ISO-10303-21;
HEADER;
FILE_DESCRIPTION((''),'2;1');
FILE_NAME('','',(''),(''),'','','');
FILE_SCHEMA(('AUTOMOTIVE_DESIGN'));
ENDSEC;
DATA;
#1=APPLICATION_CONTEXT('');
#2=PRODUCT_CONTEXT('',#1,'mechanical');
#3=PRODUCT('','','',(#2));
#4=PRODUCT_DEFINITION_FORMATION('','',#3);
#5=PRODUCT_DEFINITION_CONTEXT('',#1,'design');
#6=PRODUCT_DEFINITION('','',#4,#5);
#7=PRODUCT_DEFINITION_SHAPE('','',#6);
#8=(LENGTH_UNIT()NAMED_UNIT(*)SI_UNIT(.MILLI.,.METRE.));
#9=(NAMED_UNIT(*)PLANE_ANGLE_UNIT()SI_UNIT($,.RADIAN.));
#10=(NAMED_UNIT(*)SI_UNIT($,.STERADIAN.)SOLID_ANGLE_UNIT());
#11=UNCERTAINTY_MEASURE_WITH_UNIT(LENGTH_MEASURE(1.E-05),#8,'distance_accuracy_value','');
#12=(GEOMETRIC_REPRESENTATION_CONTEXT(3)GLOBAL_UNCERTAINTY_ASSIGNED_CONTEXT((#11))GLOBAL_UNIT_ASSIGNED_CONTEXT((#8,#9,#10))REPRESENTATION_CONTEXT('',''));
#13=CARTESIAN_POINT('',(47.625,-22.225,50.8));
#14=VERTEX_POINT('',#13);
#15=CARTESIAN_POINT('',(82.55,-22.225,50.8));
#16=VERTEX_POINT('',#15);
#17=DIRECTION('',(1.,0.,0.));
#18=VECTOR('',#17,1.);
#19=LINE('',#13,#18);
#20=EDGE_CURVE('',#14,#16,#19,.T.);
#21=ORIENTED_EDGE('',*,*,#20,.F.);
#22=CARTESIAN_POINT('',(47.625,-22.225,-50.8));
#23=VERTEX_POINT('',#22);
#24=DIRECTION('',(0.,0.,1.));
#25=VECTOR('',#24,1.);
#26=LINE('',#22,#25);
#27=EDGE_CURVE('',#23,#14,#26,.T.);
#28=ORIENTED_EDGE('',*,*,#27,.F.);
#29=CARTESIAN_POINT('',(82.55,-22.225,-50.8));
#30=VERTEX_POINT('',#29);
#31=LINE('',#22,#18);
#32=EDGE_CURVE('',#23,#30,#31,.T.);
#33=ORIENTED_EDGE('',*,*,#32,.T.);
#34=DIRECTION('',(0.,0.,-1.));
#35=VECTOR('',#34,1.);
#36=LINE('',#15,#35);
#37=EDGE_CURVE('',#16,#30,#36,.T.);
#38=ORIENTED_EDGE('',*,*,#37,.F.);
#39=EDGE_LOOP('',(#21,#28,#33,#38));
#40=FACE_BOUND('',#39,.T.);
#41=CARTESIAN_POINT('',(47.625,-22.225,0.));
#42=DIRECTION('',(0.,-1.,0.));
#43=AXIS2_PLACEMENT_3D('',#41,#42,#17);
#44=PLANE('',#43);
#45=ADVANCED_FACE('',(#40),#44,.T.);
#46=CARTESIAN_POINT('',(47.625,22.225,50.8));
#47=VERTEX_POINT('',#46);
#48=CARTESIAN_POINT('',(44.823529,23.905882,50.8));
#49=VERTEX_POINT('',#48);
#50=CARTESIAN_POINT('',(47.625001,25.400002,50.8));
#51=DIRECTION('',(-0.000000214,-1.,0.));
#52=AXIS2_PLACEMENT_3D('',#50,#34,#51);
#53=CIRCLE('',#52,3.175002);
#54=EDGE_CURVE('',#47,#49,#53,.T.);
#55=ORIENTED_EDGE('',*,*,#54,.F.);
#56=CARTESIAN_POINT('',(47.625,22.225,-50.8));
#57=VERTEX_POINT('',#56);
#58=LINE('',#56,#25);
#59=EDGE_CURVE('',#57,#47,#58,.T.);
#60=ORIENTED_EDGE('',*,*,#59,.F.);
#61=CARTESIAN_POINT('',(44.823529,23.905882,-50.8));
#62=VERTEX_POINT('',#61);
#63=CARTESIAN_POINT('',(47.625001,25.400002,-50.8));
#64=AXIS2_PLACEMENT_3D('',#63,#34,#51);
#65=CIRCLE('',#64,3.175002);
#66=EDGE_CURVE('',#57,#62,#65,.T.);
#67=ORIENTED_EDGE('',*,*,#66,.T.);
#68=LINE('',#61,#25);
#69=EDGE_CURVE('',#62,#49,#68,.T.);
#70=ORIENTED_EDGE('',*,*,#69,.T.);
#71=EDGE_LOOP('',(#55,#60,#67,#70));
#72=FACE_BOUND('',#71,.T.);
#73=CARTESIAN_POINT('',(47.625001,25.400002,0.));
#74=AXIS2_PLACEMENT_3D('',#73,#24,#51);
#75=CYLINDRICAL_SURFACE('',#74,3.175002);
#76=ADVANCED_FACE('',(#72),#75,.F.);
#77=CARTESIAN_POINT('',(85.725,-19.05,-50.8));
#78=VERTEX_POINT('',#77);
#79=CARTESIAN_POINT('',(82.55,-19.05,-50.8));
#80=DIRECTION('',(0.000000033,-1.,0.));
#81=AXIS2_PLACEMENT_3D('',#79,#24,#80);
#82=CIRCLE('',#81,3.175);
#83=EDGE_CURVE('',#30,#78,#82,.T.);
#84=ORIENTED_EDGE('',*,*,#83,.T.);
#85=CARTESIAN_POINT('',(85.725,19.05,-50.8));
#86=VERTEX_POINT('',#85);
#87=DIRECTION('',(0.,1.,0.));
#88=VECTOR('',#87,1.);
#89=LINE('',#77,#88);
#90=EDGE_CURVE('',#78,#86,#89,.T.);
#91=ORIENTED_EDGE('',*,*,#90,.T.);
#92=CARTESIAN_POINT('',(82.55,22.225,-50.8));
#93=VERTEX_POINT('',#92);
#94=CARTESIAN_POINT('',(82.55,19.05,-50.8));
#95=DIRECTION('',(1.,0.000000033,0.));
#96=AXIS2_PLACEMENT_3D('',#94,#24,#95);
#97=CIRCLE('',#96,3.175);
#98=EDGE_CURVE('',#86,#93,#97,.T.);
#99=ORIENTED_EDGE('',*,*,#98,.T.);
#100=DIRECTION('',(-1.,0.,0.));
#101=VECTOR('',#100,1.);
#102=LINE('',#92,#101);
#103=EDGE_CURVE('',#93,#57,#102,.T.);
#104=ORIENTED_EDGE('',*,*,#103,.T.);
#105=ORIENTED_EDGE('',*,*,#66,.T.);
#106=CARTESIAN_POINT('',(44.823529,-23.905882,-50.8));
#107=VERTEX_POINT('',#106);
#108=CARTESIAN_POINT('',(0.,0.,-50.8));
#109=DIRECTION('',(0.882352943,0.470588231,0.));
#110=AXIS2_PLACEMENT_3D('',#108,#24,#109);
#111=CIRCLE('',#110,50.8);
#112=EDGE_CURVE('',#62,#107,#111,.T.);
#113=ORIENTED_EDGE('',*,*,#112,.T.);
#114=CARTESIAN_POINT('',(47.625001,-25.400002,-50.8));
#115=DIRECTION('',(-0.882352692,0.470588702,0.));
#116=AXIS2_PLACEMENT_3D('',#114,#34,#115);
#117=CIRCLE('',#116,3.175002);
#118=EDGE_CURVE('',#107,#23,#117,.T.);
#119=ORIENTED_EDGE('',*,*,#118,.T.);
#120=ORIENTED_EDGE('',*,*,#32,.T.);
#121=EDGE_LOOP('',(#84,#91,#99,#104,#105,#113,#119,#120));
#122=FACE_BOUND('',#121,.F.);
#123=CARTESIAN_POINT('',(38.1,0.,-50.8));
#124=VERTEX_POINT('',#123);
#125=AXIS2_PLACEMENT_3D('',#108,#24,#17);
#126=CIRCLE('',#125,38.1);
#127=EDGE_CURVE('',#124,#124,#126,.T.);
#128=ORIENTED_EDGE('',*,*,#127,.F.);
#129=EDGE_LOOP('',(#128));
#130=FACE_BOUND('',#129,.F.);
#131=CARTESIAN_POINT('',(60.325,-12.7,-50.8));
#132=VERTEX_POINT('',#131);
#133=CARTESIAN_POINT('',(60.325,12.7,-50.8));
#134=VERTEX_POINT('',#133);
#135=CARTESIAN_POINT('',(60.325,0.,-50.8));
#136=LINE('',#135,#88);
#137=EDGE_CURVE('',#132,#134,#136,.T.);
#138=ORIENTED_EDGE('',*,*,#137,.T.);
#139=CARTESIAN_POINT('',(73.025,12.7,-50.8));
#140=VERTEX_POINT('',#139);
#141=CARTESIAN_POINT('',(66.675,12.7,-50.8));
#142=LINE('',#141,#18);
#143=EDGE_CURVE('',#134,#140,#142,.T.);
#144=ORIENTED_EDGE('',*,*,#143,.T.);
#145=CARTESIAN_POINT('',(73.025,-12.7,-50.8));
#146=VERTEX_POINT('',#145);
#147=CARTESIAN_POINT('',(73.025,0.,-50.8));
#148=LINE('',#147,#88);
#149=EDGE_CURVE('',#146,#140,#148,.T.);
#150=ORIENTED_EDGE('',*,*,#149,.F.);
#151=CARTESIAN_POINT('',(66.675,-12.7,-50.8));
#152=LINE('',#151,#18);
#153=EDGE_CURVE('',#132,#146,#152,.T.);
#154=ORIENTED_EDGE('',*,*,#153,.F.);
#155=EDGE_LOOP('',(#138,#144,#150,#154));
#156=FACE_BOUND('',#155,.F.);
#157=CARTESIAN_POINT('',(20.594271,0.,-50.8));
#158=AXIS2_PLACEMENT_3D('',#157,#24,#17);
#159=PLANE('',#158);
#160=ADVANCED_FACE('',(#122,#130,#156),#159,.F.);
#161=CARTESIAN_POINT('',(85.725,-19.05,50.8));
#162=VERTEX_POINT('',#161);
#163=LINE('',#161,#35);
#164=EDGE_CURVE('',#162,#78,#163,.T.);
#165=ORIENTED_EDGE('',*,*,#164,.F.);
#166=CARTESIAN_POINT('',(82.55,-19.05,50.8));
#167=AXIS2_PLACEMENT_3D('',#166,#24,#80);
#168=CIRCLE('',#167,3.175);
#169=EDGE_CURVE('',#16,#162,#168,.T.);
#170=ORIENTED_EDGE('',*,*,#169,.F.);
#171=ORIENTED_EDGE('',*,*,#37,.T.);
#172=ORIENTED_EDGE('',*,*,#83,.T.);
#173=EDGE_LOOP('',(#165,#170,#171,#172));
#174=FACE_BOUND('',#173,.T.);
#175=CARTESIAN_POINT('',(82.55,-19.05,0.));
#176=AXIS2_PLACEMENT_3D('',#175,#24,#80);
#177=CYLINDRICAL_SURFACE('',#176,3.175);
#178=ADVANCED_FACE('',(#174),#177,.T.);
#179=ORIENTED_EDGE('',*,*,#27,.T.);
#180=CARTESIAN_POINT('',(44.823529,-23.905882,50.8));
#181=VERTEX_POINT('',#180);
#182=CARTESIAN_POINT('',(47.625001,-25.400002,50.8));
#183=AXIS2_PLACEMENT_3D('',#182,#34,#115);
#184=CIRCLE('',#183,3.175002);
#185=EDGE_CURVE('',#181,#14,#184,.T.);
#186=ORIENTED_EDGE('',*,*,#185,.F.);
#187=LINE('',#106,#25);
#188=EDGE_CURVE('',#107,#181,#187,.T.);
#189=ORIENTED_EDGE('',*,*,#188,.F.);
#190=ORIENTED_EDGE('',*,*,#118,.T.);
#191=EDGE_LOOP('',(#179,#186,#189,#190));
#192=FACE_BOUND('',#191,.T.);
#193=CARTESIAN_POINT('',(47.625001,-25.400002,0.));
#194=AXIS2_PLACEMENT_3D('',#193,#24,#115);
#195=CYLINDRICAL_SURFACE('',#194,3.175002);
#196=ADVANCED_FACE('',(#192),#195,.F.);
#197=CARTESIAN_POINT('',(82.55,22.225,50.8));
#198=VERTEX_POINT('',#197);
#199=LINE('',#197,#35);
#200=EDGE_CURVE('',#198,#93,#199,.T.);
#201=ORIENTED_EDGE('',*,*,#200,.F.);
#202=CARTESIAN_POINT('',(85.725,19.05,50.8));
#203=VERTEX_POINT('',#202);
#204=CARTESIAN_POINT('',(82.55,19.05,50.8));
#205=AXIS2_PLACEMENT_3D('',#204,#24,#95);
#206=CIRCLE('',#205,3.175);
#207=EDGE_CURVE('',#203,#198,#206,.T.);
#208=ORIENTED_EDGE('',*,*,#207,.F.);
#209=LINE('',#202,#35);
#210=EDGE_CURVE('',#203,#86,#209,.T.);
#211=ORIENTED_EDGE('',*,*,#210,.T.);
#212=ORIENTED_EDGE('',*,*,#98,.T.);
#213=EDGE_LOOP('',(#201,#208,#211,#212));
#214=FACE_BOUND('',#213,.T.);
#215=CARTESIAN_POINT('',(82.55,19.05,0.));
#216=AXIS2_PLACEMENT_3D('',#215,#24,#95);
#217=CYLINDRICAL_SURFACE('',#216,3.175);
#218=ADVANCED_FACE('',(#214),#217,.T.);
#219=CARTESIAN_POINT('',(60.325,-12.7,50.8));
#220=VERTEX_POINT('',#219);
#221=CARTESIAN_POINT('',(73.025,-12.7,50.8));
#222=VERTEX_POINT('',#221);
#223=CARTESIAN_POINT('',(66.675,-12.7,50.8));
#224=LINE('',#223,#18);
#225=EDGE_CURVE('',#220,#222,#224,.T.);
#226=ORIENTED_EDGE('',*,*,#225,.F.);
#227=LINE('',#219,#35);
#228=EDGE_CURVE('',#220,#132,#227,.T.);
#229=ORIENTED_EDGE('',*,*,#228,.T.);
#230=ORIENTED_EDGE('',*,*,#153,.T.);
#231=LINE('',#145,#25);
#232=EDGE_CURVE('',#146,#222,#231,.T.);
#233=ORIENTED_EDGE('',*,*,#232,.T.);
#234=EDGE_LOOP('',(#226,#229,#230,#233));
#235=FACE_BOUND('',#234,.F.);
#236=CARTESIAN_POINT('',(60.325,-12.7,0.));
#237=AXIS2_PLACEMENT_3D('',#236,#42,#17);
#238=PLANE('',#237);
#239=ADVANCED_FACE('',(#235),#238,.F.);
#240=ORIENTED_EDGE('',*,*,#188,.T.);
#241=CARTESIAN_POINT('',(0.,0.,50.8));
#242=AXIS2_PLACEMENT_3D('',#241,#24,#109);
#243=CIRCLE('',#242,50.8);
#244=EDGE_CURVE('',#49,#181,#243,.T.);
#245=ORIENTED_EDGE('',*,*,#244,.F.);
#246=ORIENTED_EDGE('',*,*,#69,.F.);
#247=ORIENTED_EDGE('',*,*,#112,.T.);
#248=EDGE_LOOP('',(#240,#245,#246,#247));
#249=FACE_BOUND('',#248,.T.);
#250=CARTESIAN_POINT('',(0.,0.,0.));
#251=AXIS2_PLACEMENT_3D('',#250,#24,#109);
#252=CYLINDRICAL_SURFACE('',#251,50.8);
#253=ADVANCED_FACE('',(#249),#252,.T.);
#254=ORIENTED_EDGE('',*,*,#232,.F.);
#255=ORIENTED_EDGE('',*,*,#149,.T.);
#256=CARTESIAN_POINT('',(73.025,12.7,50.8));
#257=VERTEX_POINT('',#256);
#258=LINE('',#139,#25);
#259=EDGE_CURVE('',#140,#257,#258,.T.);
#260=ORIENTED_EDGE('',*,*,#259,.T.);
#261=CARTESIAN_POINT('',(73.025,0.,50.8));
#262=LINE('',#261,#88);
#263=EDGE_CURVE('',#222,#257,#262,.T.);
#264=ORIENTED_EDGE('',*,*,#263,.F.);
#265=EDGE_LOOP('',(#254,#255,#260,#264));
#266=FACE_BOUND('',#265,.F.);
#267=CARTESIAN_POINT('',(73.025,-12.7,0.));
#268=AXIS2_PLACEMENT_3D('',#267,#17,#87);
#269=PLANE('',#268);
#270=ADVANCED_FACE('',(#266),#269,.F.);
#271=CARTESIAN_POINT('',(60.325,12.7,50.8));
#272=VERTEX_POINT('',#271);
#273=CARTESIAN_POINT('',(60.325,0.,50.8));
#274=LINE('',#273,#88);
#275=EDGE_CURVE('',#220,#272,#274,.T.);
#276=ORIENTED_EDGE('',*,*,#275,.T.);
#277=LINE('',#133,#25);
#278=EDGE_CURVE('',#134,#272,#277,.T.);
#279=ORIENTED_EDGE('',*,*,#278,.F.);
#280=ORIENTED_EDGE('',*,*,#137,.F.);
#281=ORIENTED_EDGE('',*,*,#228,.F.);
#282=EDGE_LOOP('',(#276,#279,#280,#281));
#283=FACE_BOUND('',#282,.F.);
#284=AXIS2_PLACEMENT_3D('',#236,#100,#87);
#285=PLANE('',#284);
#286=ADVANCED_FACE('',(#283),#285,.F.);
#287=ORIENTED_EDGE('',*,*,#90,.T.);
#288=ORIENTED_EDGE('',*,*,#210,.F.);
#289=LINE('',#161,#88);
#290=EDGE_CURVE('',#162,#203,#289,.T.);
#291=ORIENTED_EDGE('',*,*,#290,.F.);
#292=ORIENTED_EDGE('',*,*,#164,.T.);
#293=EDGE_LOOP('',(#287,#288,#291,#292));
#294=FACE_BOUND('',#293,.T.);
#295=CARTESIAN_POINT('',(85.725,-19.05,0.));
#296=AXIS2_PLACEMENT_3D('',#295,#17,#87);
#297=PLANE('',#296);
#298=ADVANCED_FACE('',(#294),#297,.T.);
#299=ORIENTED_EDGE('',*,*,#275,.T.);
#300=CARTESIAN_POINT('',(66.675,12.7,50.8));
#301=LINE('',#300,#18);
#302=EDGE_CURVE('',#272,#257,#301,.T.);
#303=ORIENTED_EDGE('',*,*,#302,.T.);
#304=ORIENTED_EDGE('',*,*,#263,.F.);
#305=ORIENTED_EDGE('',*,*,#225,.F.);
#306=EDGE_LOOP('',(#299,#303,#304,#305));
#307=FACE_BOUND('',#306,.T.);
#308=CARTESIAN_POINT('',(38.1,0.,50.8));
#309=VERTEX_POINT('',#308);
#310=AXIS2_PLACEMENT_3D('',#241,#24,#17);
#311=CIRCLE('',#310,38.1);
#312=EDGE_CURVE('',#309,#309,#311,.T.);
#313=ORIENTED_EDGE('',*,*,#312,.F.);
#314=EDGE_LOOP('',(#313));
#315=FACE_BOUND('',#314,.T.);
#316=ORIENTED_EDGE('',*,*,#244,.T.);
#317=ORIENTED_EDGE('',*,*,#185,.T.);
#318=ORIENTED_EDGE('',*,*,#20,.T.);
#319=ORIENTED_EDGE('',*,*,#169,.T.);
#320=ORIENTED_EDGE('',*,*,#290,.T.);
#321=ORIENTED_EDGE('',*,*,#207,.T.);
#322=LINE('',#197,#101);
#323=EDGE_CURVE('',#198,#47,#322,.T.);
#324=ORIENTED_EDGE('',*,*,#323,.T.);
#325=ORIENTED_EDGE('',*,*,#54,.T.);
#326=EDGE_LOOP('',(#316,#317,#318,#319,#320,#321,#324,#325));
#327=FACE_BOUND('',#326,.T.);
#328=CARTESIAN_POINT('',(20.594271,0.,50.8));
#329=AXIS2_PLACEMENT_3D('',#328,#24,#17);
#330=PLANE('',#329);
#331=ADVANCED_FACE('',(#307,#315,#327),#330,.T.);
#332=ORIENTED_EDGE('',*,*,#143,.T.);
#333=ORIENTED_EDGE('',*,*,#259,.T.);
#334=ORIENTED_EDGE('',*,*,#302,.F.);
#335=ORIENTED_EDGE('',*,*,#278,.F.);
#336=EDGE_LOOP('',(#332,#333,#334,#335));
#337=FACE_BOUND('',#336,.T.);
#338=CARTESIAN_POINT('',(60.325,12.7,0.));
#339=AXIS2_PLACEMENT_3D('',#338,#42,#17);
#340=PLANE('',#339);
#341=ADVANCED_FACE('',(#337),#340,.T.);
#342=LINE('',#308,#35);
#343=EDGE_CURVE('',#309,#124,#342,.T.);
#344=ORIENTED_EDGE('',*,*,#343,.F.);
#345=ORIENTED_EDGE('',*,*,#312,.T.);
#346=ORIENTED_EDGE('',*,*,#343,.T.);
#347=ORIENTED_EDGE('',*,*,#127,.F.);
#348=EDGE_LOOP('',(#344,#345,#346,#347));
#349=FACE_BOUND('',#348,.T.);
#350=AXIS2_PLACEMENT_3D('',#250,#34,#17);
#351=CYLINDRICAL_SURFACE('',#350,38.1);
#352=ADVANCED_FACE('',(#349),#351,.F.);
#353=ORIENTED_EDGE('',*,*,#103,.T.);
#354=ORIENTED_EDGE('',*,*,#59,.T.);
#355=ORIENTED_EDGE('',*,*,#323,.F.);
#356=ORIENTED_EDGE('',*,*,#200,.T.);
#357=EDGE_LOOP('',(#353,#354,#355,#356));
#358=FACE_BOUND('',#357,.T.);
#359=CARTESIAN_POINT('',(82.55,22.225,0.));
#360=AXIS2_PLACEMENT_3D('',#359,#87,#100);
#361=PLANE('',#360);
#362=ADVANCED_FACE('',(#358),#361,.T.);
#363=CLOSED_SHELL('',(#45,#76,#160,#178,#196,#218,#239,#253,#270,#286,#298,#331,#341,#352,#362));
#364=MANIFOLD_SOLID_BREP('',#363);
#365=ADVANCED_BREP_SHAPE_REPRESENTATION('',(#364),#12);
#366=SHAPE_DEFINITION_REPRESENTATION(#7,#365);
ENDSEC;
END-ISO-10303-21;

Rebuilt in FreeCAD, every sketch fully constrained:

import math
import FreeCAD as App
import Part
import Sketcher
from FreeCAD import Vector
Q = App.Units.Quantity

doc = App.newDocument("Part")
params = doc.addObject("Spreadsheet::Sheet", "Params")
for row, (alias, value) in enumerate([
    ("sketch1_diameter", "3 in"),
    ("sketch1_radius", "2 in"),
    ("sketch1_height", "1 in"),
    ("sketch1_width", "0.5 in"),
    ("sketch1_height2", "1.5 in"),
    ("pad1_length", "4 in"),
], start=1):
    params.set(f"A{row}", alias)
    params.set(f"B{row}", "=" + value)
    params.setAlias(f"B{row}", alias)

body = doc.addObject("PartDesign::Body", "Body")

# Sketch on XY plane
sketch1 = doc.addObject("Sketcher::SketchObject", "Sketch")
body.addObject(sketch1)
sketch1.AttachmentSupport = (doc.XY_Plane, [""])
sketch1.MapMode = "FlatFace"
sketch1.addGeometry([
    Part.LineSegment(Vector(82.5, 22.2, 0), Vector(47.6, 22.2, 0)),  # 0
    Part.ArcOfCircle(Part.Circle(Vector(47.6, 25.4, 0), Vector(0, 0, 1), 3.2), math.radians(-152), math.radians(-90)),  # 1
    Part.ArcOfCircle(Part.Circle(Vector(0, 0, 0), Vector(0, 0, 1), 50.8), math.radians(28), math.radians(332)),  # 2
    Part.ArcOfCircle(Part.Circle(Vector(47.6, -25.4, 0), Vector(0, 0, 1), 3.2), math.radians(90), math.radians(152)),  # 3
    Part.LineSegment(Vector(47.6, -22.2, 0), Vector(82.5, -22.2, 0)),  # 4
    Part.ArcOfCircle(Part.Circle(Vector(82.5, -19, 0), Vector(0, 0, 1), 3.2), math.radians(-90), math.radians(0)),  # 5
    Part.LineSegment(Vector(85.7, -19.1, 0), Vector(85.7, 19.1, 0)),  # 6
    Part.ArcOfCircle(Part.Circle(Vector(82.5, 19, 0), Vector(0, 0, 1), 3.2), math.radians(0), math.radians(90)),  # 7
    Part.Circle(Vector(0, 0, 0), Vector(0, 0, 1), 38.1),  # 8
    Part.LineSegment(Vector(73, -12.7, 0), Vector(60.3, -12.7, 0)),  # 9
    Part.LineSegment(Vector(60.3, -12.7, 0), Vector(60.3, 12.7, 0)),  # 10
    Part.LineSegment(Vector(60.3, 12.7, 0), Vector(73, 12.7, 0)),  # 11
    Part.LineSegment(Vector(73, 12.7, 0), Vector(73, -12.7, 0)),  # 12
], False)
sketch1.addConstraint([
    Sketcher.Constraint("Tangent", 0, 2, 1, 2),
    Sketcher.Constraint("Tangent", 1, 1, 2, 1),
    Sketcher.Constraint("Tangent", 2, 2, 3, 2),
    Sketcher.Constraint("Tangent", 3, 1, 4, 1),
    Sketcher.Constraint("Tangent", 4, 2, 5, 1),
    Sketcher.Constraint("Tangent", 5, 2, 6, 1),
    Sketcher.Constraint("Tangent", 6, 2, 7, 1),
    Sketcher.Constraint("Tangent", 7, 2, 0, 1),
    Sketcher.Constraint("Coincident", 9, 2, 10, 1),
    Sketcher.Constraint("Coincident", 10, 2, 11, 1),
    Sketcher.Constraint("Coincident", 11, 2, 12, 1),
    Sketcher.Constraint("Coincident", 12, 2, 9, 1),
    Sketcher.Constraint("Horizontal", 0),
    Sketcher.Constraint("Horizontal", 4),
    Sketcher.Constraint("Vertical", 6),
    Sketcher.Constraint("Horizontal", 9),
    Sketcher.Constraint("Vertical", 10),
    Sketcher.Constraint("Horizontal", 11),
    Sketcher.Constraint("Vertical", 12),
    Sketcher.Constraint("Coincident", 2, 3, -1, 1),
    Sketcher.Constraint("Coincident", 8, 3, -1, 1),
    Sketcher.Constraint("Equal", 1, 3),
    Sketcher.Constraint("Equal", 5, 7),
    Sketcher.Constraint("Vertical", 1, 3, 3, 3),
    Sketcher.Constraint("Diameter", 8, Q("3 in")),
    Sketcher.Constraint("Radius", 2, Q("2 in")),
    Sketcher.Constraint("DistanceY", 10, 1, 10, 2, Q("1 in")),
    Sketcher.Constraint("DistanceX", 9, 2, 9, 1, Q("0.5 in")),
    Sketcher.Constraint("DistanceY", 6, 1, 6, 2, Q("1.5 in")),
    Sketcher.Constraint("DistanceY", -1, 1, 1, 3, Q("1.0000001 in")),
    Sketcher.Constraint("Radius", 1, Q("0.1250001 in")),
    Sketcher.Constraint("DistanceX", 0, 2, 11, 2, Q("1 in")),
    Sketcher.Constraint("DistanceY", 9, 2, -1, 1, Q("0.5 in")),
    Sketcher.Constraint("DistanceX", 3, 1, 5, 2, Q("1.5 in")),
])
sketch1.setExpression("Constraints[24]", "Params.sketch1_diameter")
sketch1.setExpression("Constraints[25]", "Params.sketch1_radius")
sketch1.setExpression("Constraints[26]", "Params.sketch1_height")
sketch1.setExpression("Constraints[27]", "Params.sketch1_width")
sketch1.setExpression("Constraints[28]", "Params.sketch1_height2")
pad1 = doc.addObject("PartDesign::Pad", "Pad")
body.addObject(pad1)
pad1.Profile = sketch1
pad1.setExpression("Length", "Params.pad1_length")
pad1.Midplane = True

doc.recompute()
